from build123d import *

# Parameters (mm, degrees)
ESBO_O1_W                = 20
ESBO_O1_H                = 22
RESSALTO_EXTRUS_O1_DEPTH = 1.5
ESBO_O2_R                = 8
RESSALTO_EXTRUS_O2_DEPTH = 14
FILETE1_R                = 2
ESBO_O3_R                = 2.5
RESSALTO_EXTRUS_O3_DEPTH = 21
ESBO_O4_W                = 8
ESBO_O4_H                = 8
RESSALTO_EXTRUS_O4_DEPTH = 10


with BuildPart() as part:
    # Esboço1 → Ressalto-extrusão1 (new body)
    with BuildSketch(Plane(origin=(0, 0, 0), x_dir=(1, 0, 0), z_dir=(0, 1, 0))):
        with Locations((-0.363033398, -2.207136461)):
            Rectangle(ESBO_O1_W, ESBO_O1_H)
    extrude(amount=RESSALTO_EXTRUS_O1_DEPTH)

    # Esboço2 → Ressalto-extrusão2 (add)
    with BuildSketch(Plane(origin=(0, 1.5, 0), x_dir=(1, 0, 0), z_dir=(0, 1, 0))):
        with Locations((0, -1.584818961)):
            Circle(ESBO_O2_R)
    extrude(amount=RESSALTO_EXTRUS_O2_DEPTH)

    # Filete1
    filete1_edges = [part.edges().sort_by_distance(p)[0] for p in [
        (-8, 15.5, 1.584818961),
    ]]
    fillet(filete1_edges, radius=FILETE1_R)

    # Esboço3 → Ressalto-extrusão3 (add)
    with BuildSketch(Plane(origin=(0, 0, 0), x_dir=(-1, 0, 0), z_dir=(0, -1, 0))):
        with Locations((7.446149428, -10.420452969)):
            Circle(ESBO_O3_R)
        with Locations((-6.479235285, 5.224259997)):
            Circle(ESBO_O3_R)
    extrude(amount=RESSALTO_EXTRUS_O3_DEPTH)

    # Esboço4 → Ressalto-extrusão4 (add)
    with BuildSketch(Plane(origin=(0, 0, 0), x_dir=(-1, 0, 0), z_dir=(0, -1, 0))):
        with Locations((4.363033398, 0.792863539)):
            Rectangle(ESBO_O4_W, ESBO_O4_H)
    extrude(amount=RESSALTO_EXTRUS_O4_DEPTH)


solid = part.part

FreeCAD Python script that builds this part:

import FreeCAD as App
import Part
import Sketcher


def edges_at(feature, points):
    """Names of the edges that pass closest to the given points."""
    edges = feature.Shape.Edges
    near = lambda p: min(range(len(edges)), key=lambda i: edges[i].distToShape(Part.Vertex(*p))[0])
    return sorted({f"Edge{near(p) + 1}" for p in points})


def add_polygon(sketch, points):
    """Adds a closed chain of lines whose ends are joined by coincident constraints."""
    first, n = sketch.GeometryCount, len(points)
    for a, b in zip(points, points[1:] + points[:1]):
        sketch.addGeometry(Part.LineSegment(App.Vector(*a, 0), App.Vector(*b, 0)), False)
    for i in range(n):
        sketch.addConstraint(Sketcher.Constraint("Coincident", first + i, 2, first + (i + 1) % n, 1))

doc = App.newDocument("Part")
body = doc.addObject("PartDesign::Body", "Body")

sketch1 = body.newObject("Sketcher::SketchObject", "Sketch")
sketch1.AttachmentSupport = (doc.getObject("XZ_Plane"), [""])
sketch1.MapMode = "FlatFace"
add_polygon(sketch1, [(-10.363033, -8.792864), (-10.363033, 13.207136), (9.636967, 13.207136), (9.636967, -8.792864)])
sketch1.addConstraint([
    Sketcher.Constraint("Vertical", 0),
    Sketcher.Constraint("Horizontal", 1),
    Sketcher.Constraint("Vertical", 2),
    Sketcher.Constraint("Horizontal", 3),
    Sketcher.Constraint("DistanceX", 1, 1, 1, 2, 20.0),
    Sketcher.Constraint("DistanceY", 0, 1, 0, 2, 22.0),
    Sketcher.Constraint("DistanceX", 0, 2, -1, 1, 10.363033),
    Sketcher.Constraint("DistanceY", -1, 1, 0, 2, 13.207136),
])
pad1 = body.newObject("PartDesign::Pad", "Pad")
pad1.Profile = sketch1
pad1.Length = 1.5
pad1.Reversed = True

sketch2 = body.newObject("Sketcher::SketchObject", "Sketch001")
sketch2.AttachmentSupport = (doc.getObject("XZ_Plane"), [""])
sketch2.MapMode = "FlatFace"
sketch2.AttachmentOffset = App.Placement(App.Vector(0, 0, -1.5), App.Rotation())
sketch2.addGeometry(Part.Circle(App.Vector(0, 1.584819, 0), App.Vector(0, 0, 1), 8), False)
sketch2.addConstraint([
    Sketcher.Constraint("PointOnObject", 0, 3, -2),
    Sketcher.Constraint("Diameter", 0, 16.0),
    Sketcher.Constraint("DistanceY", -1, 1, 0, 3, 1.584819),
])
pad2 = body.newObject("PartDesign::Pad", "Pad001")
pad2.Profile = sketch2
pad2.Length = 14
pad2.Reversed = True
doc.recompute()

fillet = body.newObject("PartDesign::Fillet", "Fillet")
fillet.Base = (pad2, edges_at(pad2, [(-8, 15.5, 1.585)]))
fillet.Radius = 2

sketch3 = body.newObject("Sketcher::SketchObject", "Sketch002")
sketch3.AttachmentSupport = (doc.getObject("XZ_Plane"), [""])
sketch3.MapMode = "FlatFace"
sketch3.addGeometry([
    Part.Circle(App.Vector(-7.446149, 10.420453, 0), App.Vector(0, 0, 1), 2.5),
    Part.Circle(App.Vector(6.479235, -5.22426, 0), App.Vector(0, 0, 1), 2.5),
], False)
sketch3.addConstraint([
    Sketcher.Constraint("Equal", 0, 1),
    Sketcher.Constraint("Diameter", 0, 5.0),
    Sketcher.Constraint("DistanceX", 0, 3, -1, 1, 7.446149),
    Sketcher.Constraint("DistanceY", 1, 3, -1, 1, 5.22426),
    Sketcher.Constraint("DistanceY", -1, 1, 0, 3, 10.420453),
    Sketcher.Constraint("DistanceX", -1, 1, 1, 3, 6.479235),
])
pad3 = body.newObject("PartDesign::Pad", "Pad002")
pad3.Profile = sketch3
pad3.Length = 21

sketch4 = body.newObject("Sketcher::SketchObject", "Sketch003")
sketch4.AttachmentSupport = (doc.getObject("XZ_Plane"), [""])
sketch4.MapMode = "FlatFace"
add_polygon(sketch4, [(-0.363033, -4.792864), (-0.363033, 3.207136), (-8.363033, 3.207136), (-8.363033, -4.792864)])
sketch4.addConstraint([
    Sketcher.Constraint("Vertical", 0),
    Sketcher.Constraint("Horizontal", 1),
    Sketcher.Constraint("Vertical", 2),
    Sketcher.Constraint("Horizontal", 3),
    Sketcher.Constraint("Equal", 3, 0),
    Sketcher.Constraint("DistanceX", 1, 2, 1, 1, 8.0),
    Sketcher.Constraint("DistanceX", 0, 2, -1, 1, 0.363033),
    Sketcher.Constraint("DistanceY", -1, 1, 0, 2, 3.207136),
])
pad4 = body.newObject("PartDesign::Pad", "Pad003")
pad4.Profile = sketch4
pad4.Length = 10

doc.recompute()
